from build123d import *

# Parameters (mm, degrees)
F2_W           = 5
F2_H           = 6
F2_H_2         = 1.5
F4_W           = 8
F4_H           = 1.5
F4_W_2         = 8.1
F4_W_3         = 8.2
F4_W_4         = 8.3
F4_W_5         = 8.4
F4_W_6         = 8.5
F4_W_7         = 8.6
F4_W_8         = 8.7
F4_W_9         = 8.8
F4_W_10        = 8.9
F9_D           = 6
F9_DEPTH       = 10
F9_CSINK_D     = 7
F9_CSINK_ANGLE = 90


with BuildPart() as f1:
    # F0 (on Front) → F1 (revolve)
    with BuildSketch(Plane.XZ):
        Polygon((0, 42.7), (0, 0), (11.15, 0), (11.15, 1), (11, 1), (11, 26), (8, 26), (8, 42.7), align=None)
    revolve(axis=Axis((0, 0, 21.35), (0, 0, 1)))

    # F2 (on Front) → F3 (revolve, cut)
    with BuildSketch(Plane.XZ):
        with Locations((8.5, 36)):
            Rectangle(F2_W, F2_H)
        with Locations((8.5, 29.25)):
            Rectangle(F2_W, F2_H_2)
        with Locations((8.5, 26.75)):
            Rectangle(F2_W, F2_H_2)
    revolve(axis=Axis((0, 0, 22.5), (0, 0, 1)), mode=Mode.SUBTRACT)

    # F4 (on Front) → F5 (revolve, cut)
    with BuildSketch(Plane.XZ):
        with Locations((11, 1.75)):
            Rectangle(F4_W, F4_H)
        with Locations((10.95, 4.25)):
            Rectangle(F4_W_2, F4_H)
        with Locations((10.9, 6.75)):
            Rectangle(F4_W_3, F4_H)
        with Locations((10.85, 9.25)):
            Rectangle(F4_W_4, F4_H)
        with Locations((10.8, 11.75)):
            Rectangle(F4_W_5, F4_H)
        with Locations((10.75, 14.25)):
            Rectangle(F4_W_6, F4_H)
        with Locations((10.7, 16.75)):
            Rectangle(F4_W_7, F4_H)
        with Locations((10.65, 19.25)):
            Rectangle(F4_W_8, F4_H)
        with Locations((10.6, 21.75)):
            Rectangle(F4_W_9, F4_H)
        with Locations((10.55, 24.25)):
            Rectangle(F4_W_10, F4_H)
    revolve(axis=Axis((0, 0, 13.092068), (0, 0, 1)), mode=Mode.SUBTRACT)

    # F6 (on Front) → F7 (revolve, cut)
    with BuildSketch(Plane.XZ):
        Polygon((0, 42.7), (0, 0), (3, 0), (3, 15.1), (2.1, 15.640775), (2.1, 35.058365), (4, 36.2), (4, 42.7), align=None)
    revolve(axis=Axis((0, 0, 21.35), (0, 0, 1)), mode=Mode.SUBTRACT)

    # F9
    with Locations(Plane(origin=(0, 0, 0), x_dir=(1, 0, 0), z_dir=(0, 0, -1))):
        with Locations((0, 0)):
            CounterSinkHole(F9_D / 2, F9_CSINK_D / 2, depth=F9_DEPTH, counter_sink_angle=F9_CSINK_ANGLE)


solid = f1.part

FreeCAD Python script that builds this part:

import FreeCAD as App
import Part
import Sketcher
from FreeCAD import Vector
Q = App.Units.Quantity


def add_polygon(sketch, points):
    """Adds a closed chain of lines whose ends are joined by coincident constraints."""
    first, n = sketch.GeometryCount, len(points)
    for a, b in zip(points, points[1:] + points[:1]):
        sketch.addGeometry(Part.LineSegment(App.Vector(*a, 0), App.Vector(*b, 0)), False)
    for i in range(n):
        sketch.addConstraint(Sketcher.Constraint("Coincident", first + i, 2, first + (i + 1) % n, 1))

doc = App.newDocument("Part")
params = doc.addObject("Spreadsheet::Sheet", "Params")
for row, (alias, value) in enumerate([
    ("sketch1_width", "3 mm"),
    ("sketch1_width2", "8 mm"),
    ("sketch1_height", "1 mm"),
    ("sketch1_height2", "25 mm"),
    ("sketch1_height3", "42.7 mm"),
    ("revolution_angle", "360 deg"),
    ("sketch2_width", "5 mm"),
    ("sketch2_height", "6 mm"),
    ("sketch2_height2", "1.5 mm"),
    ("groove_angle", "360 deg"),
    ("sketch3_width", "8 mm"),
    ("sketch3_width2", "8.1 mm"),
    ("sketch3_width3", "8.2 mm"),
    ("sketch3_width4", "8.3 mm"),
    ("sketch3_width5", "8.4 mm"),
    ("groove2_angle", "360 deg"),
    ("sketch4_width", "3 mm"),
    ("sketch4_width2", "4 mm"),
    ("sketch4_height", "42.7 mm"),
    ("sketch4_height2", "15.1 mm"),
    ("sketch4_height3", "6.5 mm"),
    ("groove3_angle", "360 deg"),
    ("sketch5_diameter", "6 mm"),
    ("hole_diameter", "6 mm"),
    ("hole_depth", "10 mm"),
    ("hole_csink_diameter", "7 mm"),
], start=1):
    params.set(f"A{row}", alias)
    params.set(f"B{row}", "=" + value)
    params.setAlias(f"B{row}", alias)

body = doc.addObject("PartDesign::Body", "Body")

sketch1 = body.newObject("Sketcher::SketchObject", "Sketch")
sketch1.AttachmentSupport = (doc.getObject("XZ_Plane"), [""])
sketch1.MapMode = "FlatFace"
add_polygon(sketch1, [(0, 42.7), (0, 0), (11.15, 0), (11.15, 1), (11, 1), (11, 26), (8, 26), (8, 42.7)])
sketch1.addConstraint(Sketcher.Constraint("Vertical", 0))
sketch1.addConstraint(Sketcher.Constraint("Horizontal", 1))
sketch1.addConstraint(Sketcher.Constraint("Vertical", 2))
sketch1.addConstraint(Sketcher.Constraint("Horizontal", 3))
sketch1.addConstraint(Sketcher.Constraint("Vertical", 4))
sketch1.addConstraint(Sketcher.Constraint("Horizontal", 5))
sketch1.addConstraint(Sketcher.Constraint("Vertical", 6))
sketch1.addConstraint(Sketcher.Constraint("Horizontal", 7))
sketch1.addConstraint(Sketcher.Constraint("Coincident", 0, 2, -1, 1))
sketch1.addConstraint(Sketcher.Constraint("DistanceX", 5, 2, 5, 1, Q("3 mm")))
sketch1.addConstraint(Sketcher.Constraint("DistanceX", 7, 2, 7, 1, Q("8 mm")))
sketch1.addConstraint(Sketcher.Constraint("DistanceY", 2, 1, 2, 2, Q("1 mm")))
sketch1.addConstraint(Sketcher.Constraint("DistanceY", 4, 1, 4, 2, Q("25 mm")))
sketch1.addConstraint(Sketcher.Constraint("DistanceY", 0, 2, 0, 1, Q("42.7 mm")))
sketch1.addConstraint(Sketcher.Constraint("DistanceX", 1, 1, 1, 2, Q("11.15 mm")))
sketch1.setExpression("Constraints[17]", "Params.sketch1_width")
sketch1.setExpression("Constraints[18]", "Params.sketch1_width2")
sketch1.setExpression("Constraints[19]", "Params.sketch1_height")
sketch1.setExpression("Constraints[20]", "Params.sketch1_height2")
sketch1.setExpression("Constraints[21]", "Params.sketch1_height3")
revolution = body.newObject("PartDesign::Revolution", "Revolution")
revolution.Profile = sketch1
revolution.ReferenceAxis = (sketch1, ["V_Axis"])
revolution.setExpression("Angle", "Params.revolution_angle")

sketch2 = body.newObject("Sketcher::SketchObject", "Sketch001")
sketch2.AttachmentSupport = (doc.getObject("XZ_Plane"), [""])
sketch2.MapMode = "FlatFace"
add_polygon(sketch2, [(6, 39), (6, 33), (11, 33), (11, 39)])
add_polygon(sketch2, [(6, 30), (6, 28.5), (11, 28.5), (11, 30)])
add_polygon(sketch2, [(6, 27.5), (6, 26), (11, 26), (11, 27.5)])
sketch2.addConstraint(Sketcher.Constraint("Vertical", 0))
sketch2.addConstraint(Sketcher.Constraint("Horizontal", 1))
sketch2.addConstraint(Sketcher.Constraint("Vertical", 2))
sketch2.addConstraint(Sketcher.Constraint("Horizontal", 3))
sketch2.addConstraint(Sketcher.Constraint("Vertical", 4))
sketch2.addConstraint(Sketcher.Constraint("Horizontal", 5))
sketch2.addConstraint(Sketcher.Constraint("Vertical", 6))
sketch2.addConstraint(Sketcher.Constraint("Horizontal", 7))
sketch2.addConstraint(Sketcher.Constraint("Vertical", 8))
sketch2.addConstraint(Sketcher.Constraint("Horizontal", 9))
sketch2.addConstraint(Sketcher.Constraint("Vertical", 10))
sketch2.addConstraint(Sketcher.Constraint("Horizontal", 11))
sketch2.addConstraint(Sketcher.Constraint("Vertical", 3, 2, 4, 2))
sketch2.addConstraint(Sketcher.Constraint("Vertical", 2, 2, 5, 2))
sketch2.addConstraint(Sketcher.Constraint("Vertical", 7, 2, 8, 2))
sketch2.addConstraint(Sketcher.Constraint("Vertical", 6, 2, 9, 2))
sketch2.addConstraint(Sketcher.Constraint("Equal", 6, 8))
sketch2.addConstraint(Sketcher.Constraint("DistanceX", 1, 1, 1, 2, Q("5 mm")))
sketch2.addConstraint(Sketcher.Constraint("DistanceY", 0, 2, 0, 1, Q("6 mm")))
sketch2.addConstraint(Sketcher.Constraint("DistanceY", 4, 2, 4, 1, Q("1.5 mm")))
sketch2.addConstraint(Sketcher.Constraint("DistanceX", -1, 1, 0, 2, Q("6 mm")))
sketch2.addConstraint(Sketcher.Constraint("DistanceY", -1, 1, 0, 2, Q("33 mm")))
sketch2.addConstraint(Sketcher.Constraint("DistanceY", -1, 1, 6, 2, Q("30 mm")))
sketch2.addConstraint(Sketcher.Constraint("DistanceY", -1, 1, 8, 2, Q("26 mm")))
sketch2.setExpression("Constraints[29]", "Params.sketch2_width")
sketch2.setExpression("Constraints[30]", "Params.sketch2_height")
sketch2.setExpression("Constraints[31]", "Params.sketch2_height2")
groove = body.newObject("PartDesign::Groove", "Groove")
groove.Profile = sketch2
groove.ReferenceAxis = (sketch2, ["V_Axis"])
groove.setExpression("Angle", "Params.groove_angle")

sketch3 = body.newObject("Sketcher::SketchObject", "Sketch002")
sketch3.AttachmentSupport = (doc.getObject("XZ_Plane"), [""])
sketch3.MapMode = "FlatFace"
add_polygon(sketch3, [(7, 2.5), (7, 1), (15, 1), (15, 2.5)])
add_polygon(sketch3, [(6.9, 5), (6.9, 3.5), (15, 3.5), (15, 5)])
add_polygon(sketch3, [(6.8, 7.5), (6.8, 6), (15, 6), (15, 7.5)])
add_polygon(sketch3, [(6.7, 10), (6.7, 8.5), (15, 8.5), (15, 10)])
add_polygon(sketch3, [(6.6, 12.5), (6.6, 11), (15, 11), (15, 12.5)])
add_polygon(sketch3, [(6.5, 15), (6.5, 13.5), (15, 13.5), (15, 15)])
add_polygon(sketch3, [(6.4, 17.5), (6.4, 16), (15, 16), (15, 17.5)])
add_polygon(sketch3, [(6.3, 20), (6.3, 18.5), (15, 18.5), (15, 20)])
add_polygon(sketch3, [(6.2, 22.5), (6.2, 21), (15, 21), (15, 22.5)])
add_polygon(sketch3, [(6.1, 25), (6.1, 23.5), (15, 23.5), (15, 25)])
sketch3.addConstraint(Sketcher.Constraint("Vertical", 0))
sketch3.addConstraint(Sketcher.Constraint("Horizontal", 1))
sketch3.addConstraint(Sketcher.Constraint("Vertical", 2))
sketch3.addConstraint(Sketcher.Constraint("Horizontal", 3))
sketch3.addConstraint(Sketcher.Constraint("Vertical", 4))
sketch3.addConstraint(Sketcher.Constraint("Horizontal", 5))
sketch3.addConstraint(Sketcher.Constraint("Vertical", 6))
sketch3.addConstraint(Sketcher.Constraint("Horizontal", 7))
sketch3.addConstraint(Sketcher.Constraint("Vertical", 8))
sketch3.addConstraint(Sketcher.Constraint("Horizontal", 9))
sketch3.addConstraint(Sketcher.Constraint("Vertical", 10))
sketch3.addConstraint(Sketcher.Constraint("Horizontal", 11))
sketch3.addConstraint(Sketcher.Constraint("Vertical", 12))
sketch3.addConstraint(Sketcher.Constraint("Horizontal", 13))
sketch3.addConstraint(Sketcher.Constraint("Vertical", 14))
sketch3.addConstraint(Sketcher.Constraint("Horizontal", 15))
sketch3.addConstraint(Sketcher.Constraint("Vertical", 16))
sketch3.addConstraint(Sketcher.Constraint("Horizontal", 17))
sketch3.addConstraint(Sketcher.Constraint("Vertical", 18))
sketch3.addConstraint(Sketcher.Constraint("Horizontal", 19))
sketch3.addConstraint(Sketcher.Constraint("Vertical", 20))
sketch3.addConstraint(Sketcher.Constraint("Horizontal", 21))
sketch3.addConstraint(Sketcher.Constraint("Vertical", 22))
sketch3.addConstraint(Sketcher.Constraint("Horizontal", 23))
sketch3.addConstraint(Sketcher.Constraint("Vertical", 24))
sketch3.addConstraint(Sketcher.Constraint("Horizontal", 25))
sketch3.addConstraint(Sketcher.Constraint("Vertical", 26))
sketch3.addConstraint(Sketcher.Constraint("Horizontal", 27))
sketch3.addConstraint(Sketcher.Constraint("Vertical", 28))
sketch3.addConstraint(Sketcher.Constraint("Horizontal", 29))
sketch3.addConstraint(Sketcher.Constraint("Vertical", 30))
sketch3.addConstraint(Sketcher.Constraint("Horizontal", 31))
sketch3.addConstraint(Sketcher.Constraint("Vertical", 32))
sketch3.addConstraint(Sketcher.Constraint("Horizontal", 33))
sketch3.addConstraint(Sketcher.Constraint("Vertical", 34))
sketch3.addConstraint(Sketcher.Constraint("Horizontal", 35))
sketch3.addConstraint(Sketcher.Constraint("Vertical", 36))
sketch3.addConstraint(Sketcher.Constraint("Horizontal", 37))
sketch3.addConstraint(Sketcher.Constraint("Vertical", 38))
sketch3.addConstraint(Sketcher.Constraint("Horizontal", 39))
sketch3.addConstraint(Sketcher.Constraint("Vertical", 2, 2, 5, 2))
sketch3.addConstraint(Sketcher.Constraint("Vertical", 6, 2, 9, 2))
sketch3.addConstraint(Sketcher.Constraint("Vertical", 10, 2, 13, 2))
sketch3.addConstraint(Sketcher.Constraint("Vertical", 14, 2, 17, 2))
sketch3.addConstraint(Sketcher.Constraint("Vertical", 18, 2, 21, 2))
sketch3.addConstraint(Sketcher.Constraint("Vertical", 22, 2, 25, 2))
sketch3.addConstraint(Sketcher.Constraint("Vertical", 26, 2, 29, 2))
sketch3.addConstraint(Sketcher.Constraint("Vertical", 30, 2, 33, 2))
sketch3.addConstraint(Sketcher.Constraint("Vertical", 34, 2, 37, 2))
sketch3.addConstraint(Sketcher.Constraint("Equal", 2, 4))
sketch3.addConstraint(Sketcher.Constraint("Equal", 6, 8))
sketch3.addConstraint(Sketcher.Constraint("Equal", 10, 12))
sketch3.addConstraint(Sketcher.Constraint("Equal", 14, 16))
sketch3.addConstraint(Sketcher.Constraint("Equal", 18, 20))
sketch3.addConstraint(Sketcher.Constraint("Equal", 22, 24))
sketch3.addConstraint(Sketcher.Constraint("Equal", 26, 28))
sketch3.addConstraint(Sketcher.Constraint("Equal", 30, 32))
sketch3.addConstraint(Sketcher.Constraint("Equal", 34, 36))
sketch3.addConstraint(Sketcher.Constraint("DistanceX", 1, 1, 1, 2, Q("8 mm")))
sketch3.addConstraint(Sketcher.Constraint("DistanceX", 5, 1, 5, 2, Q("8.1 mm")))
sketch3.addConstraint(Sketcher.Constraint("DistanceX", 9, 1, 9, 2, Q("8.2 mm")))
sketch3.addConstraint(Sketcher.Constraint("DistanceX", 13, 1, 13, 2, Q("8.3 mm")))
sketch3.addConstraint(Sketcher.Constraint("DistanceX", 17, 1, 17, 2, Q("8.4 mm")))
sketch3.addConstraint(Sketcher.Constraint("DistanceX", 21, 1, 21, 2, Q("8.5 mm")))
sketch3.addConstraint(Sketcher.Constraint("DistanceX", 25, 1, 25, 2, Q("8.6 mm")))
sketch3.addConstraint(Sketcher.Constraint("DistanceX", 29, 1, 29, 2, Q("8.7 mm")))
sketch3.addConstraint(Sketcher.Constraint("DistanceX", 33, 1, 33, 2, Q("8.8 mm")))
sketch3.addConstraint(Sketcher.Constraint("DistanceX", 37, 1, 37, 2, Q("8.9 mm")))
sketch3.addConstraint(Sketcher.Constraint("DistanceY", 0, 2, 0, 1, Q("1.5 mm")))
sketch3.addConstraint(Sketcher.Constraint("DistanceX", -1, 1, 0, 2, Q("7 mm")))
sketch3.addConstraint(Sketcher.Constraint("DistanceY", -1, 1, 0, 2, Q("1 mm")))
sketch3.addConstraint(Sketcher.Constraint("DistanceY", -1, 1, 6, 2, Q("5 mm")))
sketch3.addConstraint(Sketcher.Constraint("DistanceY", -1, 1, 8, 2, Q("6 mm")))
sketch3.addConstraint(Sketcher.Constraint("DistanceY", -1, 1, 14, 2, Q("10 mm")))
sketch3.addConstraint(Sketcher.Constraint("DistanceY", -1, 1, 16, 2, Q("11 mm")))
sketch3.addConstraint(Sketcher.Constraint("DistanceY", -1, 1, 22, 2, Q("15 mm")))
sketch3.addConstraint(Sketcher.Constraint("DistanceY", -1, 1, 24, 2, Q("16 mm")))
sketch3.addConstraint(Sketcher.Constraint("DistanceY", -1, 1, 30, 2, Q("20 mm")))
sketch3.addConstraint(Sketcher.Constraint("DistanceY", -1, 1, 32, 2, Q("21 mm")))
sketch3.addConstraint(Sketcher.Constraint("DistanceY", -1, 1, 38, 2, Q("25 mm")))
sketch3.setExpression("Constraints[98]", "Params.sketch3_width")
sketch3.setExpression("Constraints[99]", "Params.sketch3_width2")
sketch3.setExpression("Constraints[100]", "Params.sketch3_width3")
sketch3.setExpression("Constraints[101]", "Params.sketch3_width4")
sketch3.setExpression("Constraints[102]", "Params.sketch3_width5")
groove2 = body.newObject("PartDesign::Groove", "Groove001")
groove2.Profile = sketch3
groove2.ReferenceAxis = (sketch3, ["V_Axis"])
groove2.setExpression("Angle", "Params.groove2_angle")

sketch4 = body.newObject("Sketcher::SketchObject", "Sketch003")
sketch4.AttachmentSupport = (doc.getObject("XZ_Plane"), [""])
sketch4.MapMode = "FlatFace"
add_polygon(sketch4, [(0, 42.7), (0, 0), (3, 0), (3, 15.1), (2.1, 15.6), (2.1, 35.1), (4, 36.2), (4, 42.7)])
sketch4.addConstraint(Sketcher.Constraint("Vertical", 0))
sketch4.addConstraint(Sketcher.Constraint("Horizontal", 1))
sketch4.addConstraint(Sketcher.Constraint("Vertical", 2))
sketch4.addConstraint(Sketcher.Constraint("Vertical", 4))
sketch4.addConstraint(Sketcher.Constraint("Vertical", 6))
sketch4.addConstraint(Sketcher.Constraint("Horizontal", 7))
sketch4.addConstraint(Sketcher.Constraint("Coincident", 0, 2, -1, 1))
sketch4.addConstraint(Sketcher.Constraint("DistanceX", 1, 1, 1, 2, Q("3 mm")))
sketch4.addConstraint(Sketcher.Constraint("DistanceX", 7, 2, 7, 1, Q("4 mm")))
sketch4.addConstraint(Sketcher.Constraint("Angle", 5, Q("30.999996 deg")))
sketch4.addConstraint(Sketcher.Constraint("DistanceY", 0, 2, 0, 1, Q("42.7 mm")))
sketch4.addConstraint(Sketcher.Constraint("DistanceY", 2, 1, 2, 2, Q("15.1 mm")))
sketch4.addConstraint(Sketcher.Constraint("DistanceY", 6, 1, 6, 2, Q("6.5 mm")))
sketch4.addConstraint(Sketcher.Constraint("DistanceX", -1, 1, 3, 2, Q("2.1 mm")))
sketch4.addConstraint(Sketcher.Constraint("DistanceY", 4, 1, 4, 2, Q("19.41759 mm")))
sketch4.setExpression("Constraints[15]", "Params.sketch4_width")
sketch4.setExpression("Constraints[16]", "Params.sketch4_width2")
sketch4.setExpression("Constraints[18]", "Params.sketch4_height")
sketch4.setExpression("Constraints[19]", "Params.sketch4_height2")
sketch4.setExpression("Constraints[20]", "Params.sketch4_height3")
groove3 = body.newObject("PartDesign::Groove", "Groove002")
groove3.Profile = sketch4
groove3.ReferenceAxis = (sketch4, ["V_Axis"])
groove3.setExpression("Angle", "Params.groove3_angle")

sketch5 = body.newObject("Sketcher::SketchObject", "Sketch004")
sketch5.AttachmentSupport = (doc.getObject("XY_Plane"), [""])
sketch5.MapMode = "FlatFace"
sketch5.addGeometry(Part.Circle(Vector(0, 0, 0), Vector(0, 0, 1), 3), False)
sketch5.addConstraint(Sketcher.Constraint("Coincident", 0, 3, -1, 1))
sketch5.addConstraint(Sketcher.Constraint("Diameter", 0, Q("6 mm")))
sketch5.setExpression("Constraints[1]", "Params.sketch5_diameter")
doc.recompute()
hole = body.newObject("PartDesign::Hole", "Hole")
hole.Profile = sketch5
hole.ThreadType = "None"
hole.setExpression("Diameter", "Params.hole_diameter")
hole.DepthType = "Dimension"
hole.setExpression("Depth", "Params.hole_depth")
hole.DrillPoint = "Flat"
hole.HoleCutType = "Countersink"
hole.setExpression("HoleCutDiameter", "Params.hole_csink_diameter")
hole.HoleCutCountersinkAngle = 90
hole.Reversed = True

doc.recompute()
